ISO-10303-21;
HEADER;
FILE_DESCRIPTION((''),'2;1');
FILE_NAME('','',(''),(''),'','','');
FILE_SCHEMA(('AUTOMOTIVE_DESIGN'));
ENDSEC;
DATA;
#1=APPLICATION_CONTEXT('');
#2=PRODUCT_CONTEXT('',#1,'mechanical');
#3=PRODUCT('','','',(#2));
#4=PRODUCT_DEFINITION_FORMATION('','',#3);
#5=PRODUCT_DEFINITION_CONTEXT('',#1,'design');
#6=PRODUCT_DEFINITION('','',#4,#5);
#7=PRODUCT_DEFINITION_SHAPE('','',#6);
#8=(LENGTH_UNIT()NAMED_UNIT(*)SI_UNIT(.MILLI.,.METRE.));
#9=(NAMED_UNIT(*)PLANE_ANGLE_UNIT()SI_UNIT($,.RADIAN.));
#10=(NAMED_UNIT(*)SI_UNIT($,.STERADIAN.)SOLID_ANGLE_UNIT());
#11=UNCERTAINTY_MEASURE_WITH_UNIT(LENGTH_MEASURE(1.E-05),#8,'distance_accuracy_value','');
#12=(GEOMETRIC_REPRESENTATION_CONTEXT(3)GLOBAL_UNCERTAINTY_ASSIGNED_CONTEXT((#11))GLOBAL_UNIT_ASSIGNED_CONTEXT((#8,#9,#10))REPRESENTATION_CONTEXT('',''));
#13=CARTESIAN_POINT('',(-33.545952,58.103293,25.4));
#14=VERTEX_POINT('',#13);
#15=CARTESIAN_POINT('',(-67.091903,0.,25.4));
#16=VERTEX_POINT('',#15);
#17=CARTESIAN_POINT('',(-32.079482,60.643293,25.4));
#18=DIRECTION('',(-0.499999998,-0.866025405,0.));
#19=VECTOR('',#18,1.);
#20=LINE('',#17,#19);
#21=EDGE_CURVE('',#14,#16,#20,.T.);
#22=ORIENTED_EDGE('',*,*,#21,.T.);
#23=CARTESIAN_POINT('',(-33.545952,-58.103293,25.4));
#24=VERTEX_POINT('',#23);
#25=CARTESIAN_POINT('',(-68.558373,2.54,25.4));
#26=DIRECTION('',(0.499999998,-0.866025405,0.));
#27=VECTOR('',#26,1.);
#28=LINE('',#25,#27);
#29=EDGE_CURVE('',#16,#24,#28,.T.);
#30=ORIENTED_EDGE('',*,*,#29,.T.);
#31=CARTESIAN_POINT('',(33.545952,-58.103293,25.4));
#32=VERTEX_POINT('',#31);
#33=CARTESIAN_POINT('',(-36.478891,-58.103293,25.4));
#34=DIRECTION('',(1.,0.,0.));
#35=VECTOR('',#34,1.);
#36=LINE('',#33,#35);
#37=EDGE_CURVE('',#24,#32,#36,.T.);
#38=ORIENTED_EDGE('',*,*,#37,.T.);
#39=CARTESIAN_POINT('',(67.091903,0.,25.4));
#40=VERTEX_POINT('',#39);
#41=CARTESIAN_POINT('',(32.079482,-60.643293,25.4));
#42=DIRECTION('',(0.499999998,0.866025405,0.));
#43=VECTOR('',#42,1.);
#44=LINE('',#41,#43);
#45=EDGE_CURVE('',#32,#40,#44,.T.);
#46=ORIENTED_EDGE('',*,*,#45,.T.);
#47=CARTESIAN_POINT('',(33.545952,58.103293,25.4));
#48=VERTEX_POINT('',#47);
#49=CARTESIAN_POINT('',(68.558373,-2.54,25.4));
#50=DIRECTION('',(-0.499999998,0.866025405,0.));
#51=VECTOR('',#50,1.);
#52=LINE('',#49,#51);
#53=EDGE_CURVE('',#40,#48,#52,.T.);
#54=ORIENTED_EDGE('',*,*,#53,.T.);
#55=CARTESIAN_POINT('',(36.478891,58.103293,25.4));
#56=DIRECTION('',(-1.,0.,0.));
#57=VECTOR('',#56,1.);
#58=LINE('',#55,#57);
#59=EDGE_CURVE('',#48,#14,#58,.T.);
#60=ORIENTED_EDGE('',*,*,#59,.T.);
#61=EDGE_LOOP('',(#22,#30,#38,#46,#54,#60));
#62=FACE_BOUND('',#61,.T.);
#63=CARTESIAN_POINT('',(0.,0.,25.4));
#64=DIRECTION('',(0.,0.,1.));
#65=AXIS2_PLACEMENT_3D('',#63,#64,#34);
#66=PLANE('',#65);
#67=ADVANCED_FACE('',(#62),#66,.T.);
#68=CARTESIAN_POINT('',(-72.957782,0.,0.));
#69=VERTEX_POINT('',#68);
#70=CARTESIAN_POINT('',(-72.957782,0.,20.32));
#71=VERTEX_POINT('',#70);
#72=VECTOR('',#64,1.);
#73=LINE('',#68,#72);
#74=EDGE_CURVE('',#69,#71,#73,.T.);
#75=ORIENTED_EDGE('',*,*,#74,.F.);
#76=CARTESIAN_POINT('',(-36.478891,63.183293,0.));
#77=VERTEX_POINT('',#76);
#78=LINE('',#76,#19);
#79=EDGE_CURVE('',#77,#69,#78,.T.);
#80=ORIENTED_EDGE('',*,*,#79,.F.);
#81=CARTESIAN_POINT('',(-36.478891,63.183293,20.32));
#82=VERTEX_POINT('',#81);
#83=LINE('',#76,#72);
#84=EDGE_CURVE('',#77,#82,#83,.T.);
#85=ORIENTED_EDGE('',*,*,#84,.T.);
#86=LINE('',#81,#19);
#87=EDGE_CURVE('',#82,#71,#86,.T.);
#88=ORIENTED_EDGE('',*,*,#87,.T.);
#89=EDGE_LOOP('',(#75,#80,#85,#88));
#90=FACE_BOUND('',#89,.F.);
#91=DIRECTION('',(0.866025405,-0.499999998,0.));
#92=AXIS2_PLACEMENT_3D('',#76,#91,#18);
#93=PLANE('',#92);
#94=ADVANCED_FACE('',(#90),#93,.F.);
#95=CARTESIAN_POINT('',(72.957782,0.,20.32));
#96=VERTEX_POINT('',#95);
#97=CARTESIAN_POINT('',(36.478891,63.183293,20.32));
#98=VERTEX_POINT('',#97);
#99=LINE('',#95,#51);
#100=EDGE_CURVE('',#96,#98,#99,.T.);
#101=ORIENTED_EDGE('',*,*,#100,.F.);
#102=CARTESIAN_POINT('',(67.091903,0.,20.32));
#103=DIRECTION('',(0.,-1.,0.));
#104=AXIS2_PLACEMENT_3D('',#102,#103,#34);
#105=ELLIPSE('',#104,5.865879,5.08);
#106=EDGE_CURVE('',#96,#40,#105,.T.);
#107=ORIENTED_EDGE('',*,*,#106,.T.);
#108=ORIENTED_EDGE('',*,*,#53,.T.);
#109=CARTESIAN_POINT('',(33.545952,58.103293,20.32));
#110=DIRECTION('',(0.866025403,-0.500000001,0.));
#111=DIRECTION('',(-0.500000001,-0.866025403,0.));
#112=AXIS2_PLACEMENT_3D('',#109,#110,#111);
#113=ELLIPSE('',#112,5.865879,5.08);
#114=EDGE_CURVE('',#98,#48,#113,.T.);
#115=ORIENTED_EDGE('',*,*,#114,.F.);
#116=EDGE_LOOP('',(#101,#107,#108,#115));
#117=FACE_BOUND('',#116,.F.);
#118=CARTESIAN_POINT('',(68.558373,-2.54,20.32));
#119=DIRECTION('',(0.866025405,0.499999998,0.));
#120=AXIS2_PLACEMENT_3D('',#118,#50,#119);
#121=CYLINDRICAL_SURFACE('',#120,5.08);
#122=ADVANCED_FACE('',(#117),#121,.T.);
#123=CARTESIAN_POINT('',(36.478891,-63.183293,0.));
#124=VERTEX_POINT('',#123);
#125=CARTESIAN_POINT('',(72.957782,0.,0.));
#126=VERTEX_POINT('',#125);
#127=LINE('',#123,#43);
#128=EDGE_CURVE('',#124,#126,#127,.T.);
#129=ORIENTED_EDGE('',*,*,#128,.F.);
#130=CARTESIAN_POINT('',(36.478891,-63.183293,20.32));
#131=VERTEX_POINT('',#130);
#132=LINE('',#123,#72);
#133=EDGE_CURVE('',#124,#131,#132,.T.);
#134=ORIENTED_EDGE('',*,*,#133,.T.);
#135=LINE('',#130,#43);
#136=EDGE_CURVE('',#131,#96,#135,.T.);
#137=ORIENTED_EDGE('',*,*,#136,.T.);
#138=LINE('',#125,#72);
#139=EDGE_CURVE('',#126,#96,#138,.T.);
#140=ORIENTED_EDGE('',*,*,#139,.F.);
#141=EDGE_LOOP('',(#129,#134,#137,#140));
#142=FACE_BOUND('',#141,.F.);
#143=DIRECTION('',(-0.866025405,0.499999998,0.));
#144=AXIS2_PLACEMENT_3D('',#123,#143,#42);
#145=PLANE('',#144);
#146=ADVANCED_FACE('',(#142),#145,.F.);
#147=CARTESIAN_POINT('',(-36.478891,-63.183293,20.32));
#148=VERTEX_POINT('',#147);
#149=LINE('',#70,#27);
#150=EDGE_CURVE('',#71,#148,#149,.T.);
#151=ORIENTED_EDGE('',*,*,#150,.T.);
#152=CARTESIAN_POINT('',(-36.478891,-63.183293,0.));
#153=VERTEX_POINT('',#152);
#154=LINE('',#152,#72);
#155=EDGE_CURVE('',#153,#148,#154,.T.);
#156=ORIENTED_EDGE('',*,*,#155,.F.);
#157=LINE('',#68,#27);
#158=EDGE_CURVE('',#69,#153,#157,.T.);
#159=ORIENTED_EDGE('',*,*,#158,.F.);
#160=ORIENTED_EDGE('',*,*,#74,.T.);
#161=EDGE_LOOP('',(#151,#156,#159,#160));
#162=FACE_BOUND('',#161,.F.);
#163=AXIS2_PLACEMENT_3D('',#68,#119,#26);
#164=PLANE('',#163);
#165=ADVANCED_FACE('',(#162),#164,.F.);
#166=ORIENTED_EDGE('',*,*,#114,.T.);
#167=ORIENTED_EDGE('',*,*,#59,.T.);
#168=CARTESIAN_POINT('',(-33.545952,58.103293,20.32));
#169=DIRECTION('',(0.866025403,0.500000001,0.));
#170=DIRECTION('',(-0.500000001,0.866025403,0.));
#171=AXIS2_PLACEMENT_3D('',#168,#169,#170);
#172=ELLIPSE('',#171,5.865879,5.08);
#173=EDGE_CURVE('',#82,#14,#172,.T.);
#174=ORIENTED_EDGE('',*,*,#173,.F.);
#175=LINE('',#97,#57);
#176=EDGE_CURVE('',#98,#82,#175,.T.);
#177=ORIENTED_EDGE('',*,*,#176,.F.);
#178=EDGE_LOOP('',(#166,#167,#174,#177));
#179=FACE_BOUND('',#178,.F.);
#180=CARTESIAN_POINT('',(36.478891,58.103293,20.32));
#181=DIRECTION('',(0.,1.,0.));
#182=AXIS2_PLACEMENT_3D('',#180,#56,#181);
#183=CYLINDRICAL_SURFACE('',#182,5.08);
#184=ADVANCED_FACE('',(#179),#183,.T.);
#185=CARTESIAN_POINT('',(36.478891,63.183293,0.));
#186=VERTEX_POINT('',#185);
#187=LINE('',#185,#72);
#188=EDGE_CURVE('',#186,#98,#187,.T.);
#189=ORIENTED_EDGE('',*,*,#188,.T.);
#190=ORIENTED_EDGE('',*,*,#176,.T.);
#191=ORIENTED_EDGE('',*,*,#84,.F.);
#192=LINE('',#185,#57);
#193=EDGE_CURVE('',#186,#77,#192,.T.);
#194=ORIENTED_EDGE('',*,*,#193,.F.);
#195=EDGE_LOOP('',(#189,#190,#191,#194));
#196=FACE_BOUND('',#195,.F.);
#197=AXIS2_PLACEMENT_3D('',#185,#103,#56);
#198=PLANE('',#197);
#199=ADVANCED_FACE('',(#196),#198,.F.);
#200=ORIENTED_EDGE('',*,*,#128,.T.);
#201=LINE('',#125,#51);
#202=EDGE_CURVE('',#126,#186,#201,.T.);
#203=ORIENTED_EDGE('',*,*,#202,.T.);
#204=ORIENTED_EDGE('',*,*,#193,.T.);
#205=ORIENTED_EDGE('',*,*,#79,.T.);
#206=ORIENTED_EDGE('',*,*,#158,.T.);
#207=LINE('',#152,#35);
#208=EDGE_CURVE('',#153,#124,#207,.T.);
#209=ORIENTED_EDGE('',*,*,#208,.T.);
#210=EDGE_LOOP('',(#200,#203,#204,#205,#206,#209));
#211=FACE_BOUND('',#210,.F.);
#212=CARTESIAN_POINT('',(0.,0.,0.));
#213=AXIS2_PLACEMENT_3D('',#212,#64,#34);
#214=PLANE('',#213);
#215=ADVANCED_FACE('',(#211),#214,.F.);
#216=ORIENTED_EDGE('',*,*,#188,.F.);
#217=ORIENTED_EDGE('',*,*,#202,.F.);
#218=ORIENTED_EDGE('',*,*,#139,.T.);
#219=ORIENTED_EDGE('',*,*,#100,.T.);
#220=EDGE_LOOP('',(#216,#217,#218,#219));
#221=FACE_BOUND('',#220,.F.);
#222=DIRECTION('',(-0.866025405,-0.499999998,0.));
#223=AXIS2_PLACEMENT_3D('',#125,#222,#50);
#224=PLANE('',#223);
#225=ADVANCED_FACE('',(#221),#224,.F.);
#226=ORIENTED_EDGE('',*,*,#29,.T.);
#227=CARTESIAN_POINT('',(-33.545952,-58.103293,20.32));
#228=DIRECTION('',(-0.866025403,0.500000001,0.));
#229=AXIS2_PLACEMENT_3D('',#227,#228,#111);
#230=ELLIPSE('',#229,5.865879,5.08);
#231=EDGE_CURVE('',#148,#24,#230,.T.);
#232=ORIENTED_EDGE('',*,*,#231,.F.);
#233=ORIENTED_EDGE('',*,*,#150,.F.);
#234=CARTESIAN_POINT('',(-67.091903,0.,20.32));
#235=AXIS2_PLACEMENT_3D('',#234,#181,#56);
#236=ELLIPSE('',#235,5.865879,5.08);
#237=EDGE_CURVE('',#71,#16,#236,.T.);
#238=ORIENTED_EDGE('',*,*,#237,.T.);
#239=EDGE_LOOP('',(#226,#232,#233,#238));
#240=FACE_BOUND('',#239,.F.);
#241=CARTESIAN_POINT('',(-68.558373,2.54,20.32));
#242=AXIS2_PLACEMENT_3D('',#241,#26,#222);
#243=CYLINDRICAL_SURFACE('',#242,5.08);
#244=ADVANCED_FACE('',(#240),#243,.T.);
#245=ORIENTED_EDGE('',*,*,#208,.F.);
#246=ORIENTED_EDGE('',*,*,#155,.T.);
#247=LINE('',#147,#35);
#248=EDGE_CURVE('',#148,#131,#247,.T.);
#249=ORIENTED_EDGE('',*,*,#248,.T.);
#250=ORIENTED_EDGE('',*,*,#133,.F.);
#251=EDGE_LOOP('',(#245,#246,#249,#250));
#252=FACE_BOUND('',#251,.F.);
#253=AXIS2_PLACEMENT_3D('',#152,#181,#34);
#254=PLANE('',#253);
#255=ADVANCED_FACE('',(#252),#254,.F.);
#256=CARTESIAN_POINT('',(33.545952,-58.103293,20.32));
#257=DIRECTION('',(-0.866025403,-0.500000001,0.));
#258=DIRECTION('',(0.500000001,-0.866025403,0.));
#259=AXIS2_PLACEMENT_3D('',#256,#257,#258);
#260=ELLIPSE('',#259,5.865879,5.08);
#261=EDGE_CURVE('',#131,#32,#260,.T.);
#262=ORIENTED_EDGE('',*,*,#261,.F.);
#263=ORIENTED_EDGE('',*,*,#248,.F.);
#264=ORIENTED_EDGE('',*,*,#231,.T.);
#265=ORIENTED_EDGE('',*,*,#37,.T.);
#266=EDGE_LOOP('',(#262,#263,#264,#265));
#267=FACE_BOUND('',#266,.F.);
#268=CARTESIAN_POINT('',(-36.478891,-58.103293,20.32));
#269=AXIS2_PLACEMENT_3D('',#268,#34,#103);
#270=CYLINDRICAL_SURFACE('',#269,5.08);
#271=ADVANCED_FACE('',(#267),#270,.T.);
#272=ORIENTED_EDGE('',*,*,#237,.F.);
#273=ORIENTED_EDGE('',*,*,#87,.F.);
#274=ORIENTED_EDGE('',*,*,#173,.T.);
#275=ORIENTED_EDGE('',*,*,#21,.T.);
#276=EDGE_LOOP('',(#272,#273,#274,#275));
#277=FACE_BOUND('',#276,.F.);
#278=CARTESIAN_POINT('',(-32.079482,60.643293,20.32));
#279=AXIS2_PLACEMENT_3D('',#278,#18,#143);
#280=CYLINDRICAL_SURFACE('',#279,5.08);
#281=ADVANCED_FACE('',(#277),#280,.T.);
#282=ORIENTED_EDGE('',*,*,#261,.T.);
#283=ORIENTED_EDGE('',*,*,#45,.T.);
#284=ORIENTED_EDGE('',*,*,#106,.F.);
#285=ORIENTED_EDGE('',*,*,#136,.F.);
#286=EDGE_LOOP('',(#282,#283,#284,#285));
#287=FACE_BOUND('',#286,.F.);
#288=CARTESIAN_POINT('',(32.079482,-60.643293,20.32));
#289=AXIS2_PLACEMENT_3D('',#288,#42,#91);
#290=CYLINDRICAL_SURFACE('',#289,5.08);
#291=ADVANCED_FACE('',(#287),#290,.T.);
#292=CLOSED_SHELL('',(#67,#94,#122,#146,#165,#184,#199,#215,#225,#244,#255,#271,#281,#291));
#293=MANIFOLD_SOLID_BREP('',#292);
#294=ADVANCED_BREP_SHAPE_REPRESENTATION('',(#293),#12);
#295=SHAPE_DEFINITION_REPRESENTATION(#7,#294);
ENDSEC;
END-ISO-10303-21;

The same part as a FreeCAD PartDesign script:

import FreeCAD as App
import Part
import Sketcher
Q = App.Units.Quantity


def edges_at(feature, points):
    """Names of the edges that pass closest to the given points."""
    edges = feature.Shape.Edges
    near = lambda p: min(range(len(edges)), key=lambda i: edges[i].distToShape(Part.Vertex(*p))[0])
    return sorted({f"Edge{near(p) + 1}" for p in points})


def add_polygon(sketch, points):
    """Adds a closed chain of lines whose ends are joined by coincident constraints."""
    first, n = sketch.GeometryCount, len(points)
    for a, b in zip(points, points[1:] + points[:1]):
        sketch.addGeometry(Part.LineSegment(App.Vector(*a, 0), App.Vector(*b, 0)), False)
    for i in range(n):
        sketch.addConstraint(Sketcher.Constraint("Coincident", first + i, 2, first + (i + 1) % n, 1))

doc = App.newDocument("Part")
params = doc.addObject("Spreadsheet::Sheet", "Params")
for row, (alias, value) in enumerate([
    ("pad1_length", "1 in"),
    ("fillet_radius", "0.2 in"),
], start=1):
    params.set(f"A{row}", alias)
    params.set(f"B{row}", "=" + value)
    params.setAlias(f"B{row}", alias)

body = doc.addObject("PartDesign::Body", "Body")

sketch1 = body.newObject("Sketcher::SketchObject", "Sketch")
sketch1.AttachmentSupport = (doc.getObject("XY_Plane"), [""])
sketch1.MapMode = "FlatFace"
add_polygon(sketch1, [(36.478891, 63.183293), (-36.478891, 63.183293), (-72.957782, 0), (-36.478891, -63.183293), (36.478891, -63.183293), (72.957782, 0)])
sketch1.addConstraint([
    Sketcher.Constraint("Horizontal", 0),
    Sketcher.Constraint("Horizontal", 3),
    Sketcher.Constraint("Symmetric", 0, 2, 3, 2, -1, 1),
    Sketcher.Constraint("Symmetric", 1, 2, 4, 2, -1, 1),
    Sketcher.Constraint("PointOnObject", 1, 2, -1),
    Sketcher.Constraint("Parallel", 2, 5),
    Sketcher.Constraint("Vertical", 0, 2, 2, 2),
    Sketcher.Constraint("Angle", 1, Q("-120 deg")),
    Sketcher.Constraint("DistanceX", 0, 2, 0, 1, Q("72.957782 mm")),
    Sketcher.Constraint("DistanceX", 1, 2, -1, 1, Q("72.957782 mm")),
])
pad1 = body.newObject("PartDesign::Pad", "Pad")
pad1.Profile = sketch1
pad1.setExpression("Length", "Params.pad1_length")
doc.recompute()

fillet = body.newObject("PartDesign::Fillet", "Fillet")
fillet.Base = (pad1, edges_at(pad1, [
    (0, 63.183, 25.4),
    (-54.718, 31.592, 25.4),
    (-54.718, -31.592, 25.4),
    (0, -63.183, 25.4),
    (54.718, -31.592, 25.4),
    (54.718, 31.592, 25.4),
]))
fillet.setExpression("Radius", "Params.fillet_radius")

doc.recompute()
